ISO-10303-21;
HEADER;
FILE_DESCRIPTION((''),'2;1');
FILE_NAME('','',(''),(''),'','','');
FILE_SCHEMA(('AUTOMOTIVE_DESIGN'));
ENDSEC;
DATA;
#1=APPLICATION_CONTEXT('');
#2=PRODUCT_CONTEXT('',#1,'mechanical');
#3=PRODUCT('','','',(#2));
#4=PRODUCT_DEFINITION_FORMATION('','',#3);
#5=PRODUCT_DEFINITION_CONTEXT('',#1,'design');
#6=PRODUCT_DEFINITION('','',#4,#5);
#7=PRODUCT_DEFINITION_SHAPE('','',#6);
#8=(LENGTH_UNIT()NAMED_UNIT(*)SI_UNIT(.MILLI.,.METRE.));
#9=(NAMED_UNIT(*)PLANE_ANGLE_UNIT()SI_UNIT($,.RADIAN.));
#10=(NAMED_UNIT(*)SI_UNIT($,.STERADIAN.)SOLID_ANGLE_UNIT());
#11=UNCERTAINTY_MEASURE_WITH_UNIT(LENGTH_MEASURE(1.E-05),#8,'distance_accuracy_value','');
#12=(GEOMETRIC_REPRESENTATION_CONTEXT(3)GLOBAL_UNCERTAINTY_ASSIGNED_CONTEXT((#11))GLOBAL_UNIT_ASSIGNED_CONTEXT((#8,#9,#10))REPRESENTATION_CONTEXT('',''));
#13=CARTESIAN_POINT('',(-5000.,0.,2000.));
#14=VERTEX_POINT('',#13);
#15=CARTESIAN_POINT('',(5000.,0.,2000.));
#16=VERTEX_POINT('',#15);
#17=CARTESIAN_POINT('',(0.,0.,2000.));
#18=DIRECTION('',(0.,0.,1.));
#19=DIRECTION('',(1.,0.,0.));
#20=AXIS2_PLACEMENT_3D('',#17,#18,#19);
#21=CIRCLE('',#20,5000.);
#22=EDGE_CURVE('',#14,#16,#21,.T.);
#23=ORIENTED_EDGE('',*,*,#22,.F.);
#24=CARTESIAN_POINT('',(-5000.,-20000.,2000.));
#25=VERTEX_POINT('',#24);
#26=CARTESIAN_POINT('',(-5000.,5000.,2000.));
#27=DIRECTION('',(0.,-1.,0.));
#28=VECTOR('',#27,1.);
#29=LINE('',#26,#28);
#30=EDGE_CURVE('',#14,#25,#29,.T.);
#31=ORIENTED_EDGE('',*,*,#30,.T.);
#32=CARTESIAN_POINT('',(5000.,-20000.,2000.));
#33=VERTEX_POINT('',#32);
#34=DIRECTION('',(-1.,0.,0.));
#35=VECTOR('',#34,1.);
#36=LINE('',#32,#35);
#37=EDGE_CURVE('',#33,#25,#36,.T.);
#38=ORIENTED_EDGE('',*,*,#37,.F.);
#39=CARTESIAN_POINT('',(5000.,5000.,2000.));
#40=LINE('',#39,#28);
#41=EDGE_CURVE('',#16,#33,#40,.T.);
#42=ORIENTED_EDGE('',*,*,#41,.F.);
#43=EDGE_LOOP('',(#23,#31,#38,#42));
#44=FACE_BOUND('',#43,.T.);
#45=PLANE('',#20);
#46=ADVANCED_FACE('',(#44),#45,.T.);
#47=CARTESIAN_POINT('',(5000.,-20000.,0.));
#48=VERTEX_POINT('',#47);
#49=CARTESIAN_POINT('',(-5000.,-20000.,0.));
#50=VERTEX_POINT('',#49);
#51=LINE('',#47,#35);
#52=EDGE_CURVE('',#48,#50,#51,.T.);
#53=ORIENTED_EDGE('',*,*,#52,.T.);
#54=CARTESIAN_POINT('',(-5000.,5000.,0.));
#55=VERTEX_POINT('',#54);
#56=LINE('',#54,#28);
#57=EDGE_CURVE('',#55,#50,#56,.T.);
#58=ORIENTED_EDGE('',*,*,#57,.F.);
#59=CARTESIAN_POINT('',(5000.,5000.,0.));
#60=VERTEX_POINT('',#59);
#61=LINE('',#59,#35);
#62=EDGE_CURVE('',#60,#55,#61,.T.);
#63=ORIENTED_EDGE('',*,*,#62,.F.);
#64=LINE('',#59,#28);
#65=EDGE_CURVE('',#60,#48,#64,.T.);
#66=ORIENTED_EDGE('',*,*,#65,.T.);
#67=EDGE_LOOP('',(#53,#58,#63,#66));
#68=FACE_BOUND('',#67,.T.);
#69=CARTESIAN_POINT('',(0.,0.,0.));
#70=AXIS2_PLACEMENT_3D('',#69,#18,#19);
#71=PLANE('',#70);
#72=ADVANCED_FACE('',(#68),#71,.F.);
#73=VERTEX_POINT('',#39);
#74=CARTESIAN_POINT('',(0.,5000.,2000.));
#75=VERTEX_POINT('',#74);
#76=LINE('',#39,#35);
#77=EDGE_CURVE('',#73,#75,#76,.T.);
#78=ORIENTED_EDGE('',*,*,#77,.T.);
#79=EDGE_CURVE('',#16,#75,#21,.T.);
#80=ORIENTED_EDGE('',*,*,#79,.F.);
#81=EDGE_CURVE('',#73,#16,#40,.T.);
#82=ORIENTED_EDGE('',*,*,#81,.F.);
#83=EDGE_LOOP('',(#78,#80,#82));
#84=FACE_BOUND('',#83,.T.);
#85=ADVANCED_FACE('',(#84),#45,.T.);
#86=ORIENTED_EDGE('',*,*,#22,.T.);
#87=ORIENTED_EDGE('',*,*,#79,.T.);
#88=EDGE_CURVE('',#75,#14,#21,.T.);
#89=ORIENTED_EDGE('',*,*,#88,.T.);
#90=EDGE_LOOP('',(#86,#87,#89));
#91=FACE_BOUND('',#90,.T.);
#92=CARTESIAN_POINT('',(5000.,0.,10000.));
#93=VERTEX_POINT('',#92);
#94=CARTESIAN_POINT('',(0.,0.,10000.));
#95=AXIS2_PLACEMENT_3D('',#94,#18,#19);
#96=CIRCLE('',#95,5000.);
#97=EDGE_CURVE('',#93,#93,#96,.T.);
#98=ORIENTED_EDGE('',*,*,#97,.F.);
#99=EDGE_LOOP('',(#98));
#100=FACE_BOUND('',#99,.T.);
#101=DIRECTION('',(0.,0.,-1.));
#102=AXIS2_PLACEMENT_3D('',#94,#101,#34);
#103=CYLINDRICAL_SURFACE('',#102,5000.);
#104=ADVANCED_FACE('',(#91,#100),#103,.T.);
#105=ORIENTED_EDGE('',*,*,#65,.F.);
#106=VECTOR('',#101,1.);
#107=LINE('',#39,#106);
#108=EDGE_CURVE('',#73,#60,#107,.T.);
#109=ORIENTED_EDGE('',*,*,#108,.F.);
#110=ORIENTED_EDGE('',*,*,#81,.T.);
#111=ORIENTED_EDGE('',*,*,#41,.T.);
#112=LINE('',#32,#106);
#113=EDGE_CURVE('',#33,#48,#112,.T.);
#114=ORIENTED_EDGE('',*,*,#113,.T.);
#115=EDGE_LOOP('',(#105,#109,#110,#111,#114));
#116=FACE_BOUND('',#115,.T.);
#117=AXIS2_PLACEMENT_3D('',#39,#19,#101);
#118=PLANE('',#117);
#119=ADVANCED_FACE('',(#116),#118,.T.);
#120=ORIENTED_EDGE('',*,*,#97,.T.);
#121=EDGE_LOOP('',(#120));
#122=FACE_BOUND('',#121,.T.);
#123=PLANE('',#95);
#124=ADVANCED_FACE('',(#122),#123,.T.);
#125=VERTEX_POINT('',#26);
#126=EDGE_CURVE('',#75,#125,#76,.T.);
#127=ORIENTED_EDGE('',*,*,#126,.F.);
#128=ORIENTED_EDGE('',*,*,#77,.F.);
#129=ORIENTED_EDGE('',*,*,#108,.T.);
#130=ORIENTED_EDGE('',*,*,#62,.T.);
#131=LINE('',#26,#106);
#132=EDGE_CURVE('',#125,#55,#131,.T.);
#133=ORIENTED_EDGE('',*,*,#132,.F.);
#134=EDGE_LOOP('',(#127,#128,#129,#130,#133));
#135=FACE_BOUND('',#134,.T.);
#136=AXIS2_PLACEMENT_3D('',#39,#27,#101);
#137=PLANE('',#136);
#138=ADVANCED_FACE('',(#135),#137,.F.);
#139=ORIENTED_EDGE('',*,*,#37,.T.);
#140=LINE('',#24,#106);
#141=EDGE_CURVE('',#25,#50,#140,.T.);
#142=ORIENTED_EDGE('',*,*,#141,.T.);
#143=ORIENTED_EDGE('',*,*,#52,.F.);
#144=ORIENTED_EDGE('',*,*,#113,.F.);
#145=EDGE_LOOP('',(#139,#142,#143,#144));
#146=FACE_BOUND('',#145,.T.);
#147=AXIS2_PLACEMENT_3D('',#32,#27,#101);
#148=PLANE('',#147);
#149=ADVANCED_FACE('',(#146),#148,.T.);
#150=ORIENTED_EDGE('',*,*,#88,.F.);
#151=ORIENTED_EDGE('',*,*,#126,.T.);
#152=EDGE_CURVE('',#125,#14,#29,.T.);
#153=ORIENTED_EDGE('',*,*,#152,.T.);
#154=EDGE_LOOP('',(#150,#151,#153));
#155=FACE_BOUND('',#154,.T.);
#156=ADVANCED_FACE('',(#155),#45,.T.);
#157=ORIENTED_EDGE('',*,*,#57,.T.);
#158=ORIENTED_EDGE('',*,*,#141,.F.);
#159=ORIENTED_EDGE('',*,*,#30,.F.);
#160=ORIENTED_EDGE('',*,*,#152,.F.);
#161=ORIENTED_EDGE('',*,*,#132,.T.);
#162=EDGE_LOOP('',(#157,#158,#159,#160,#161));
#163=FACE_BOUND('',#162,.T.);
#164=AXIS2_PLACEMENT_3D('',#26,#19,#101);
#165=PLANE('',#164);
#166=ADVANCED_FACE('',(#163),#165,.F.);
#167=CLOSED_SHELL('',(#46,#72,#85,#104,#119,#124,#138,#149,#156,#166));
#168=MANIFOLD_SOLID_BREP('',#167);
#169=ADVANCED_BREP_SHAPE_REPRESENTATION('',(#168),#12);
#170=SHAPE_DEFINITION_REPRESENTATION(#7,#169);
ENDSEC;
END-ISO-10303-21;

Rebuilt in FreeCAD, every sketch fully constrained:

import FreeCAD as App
import Part
import Sketcher

V = App.Vector
Q = App.Units.Quantity

doc = App.newDocument("Part")
params = doc.addObject("Spreadsheet::Sheet", "Params")
for row, (alias, value) in enumerate([
    ("sketch1_diameter", "10000 mm"),
    ("pad1_length", "10000 mm"),
    ("sketch2_width", "10000 mm"),
    ("sketch2_height", "25000 mm"),
    ("pad2_length", "2000 mm"),
], start=1):
    params.set(f"A{row}", alias)
    params.set(f"B{row}", "=" + value)
    params.setAlias(f"B{row}", alias)

body = doc.addObject("PartDesign::Body", "Body")

# Sketch on XY plane
sketch1 = body.newObject("Sketcher::SketchObject", "Sketch")
sketch1.AttachmentSupport = (doc.getObject("XY_Plane"), [""])
sketch1.MapMode = "FlatFace"
sketch1.addGeometry(Part.Circle(V(0, 0, 0), V(0, 0, 1), 5000), False)
sketch1.addConstraint(Sketcher.Constraint("Coincident", 0, 3, -1, 1))
sketch1.addConstraint(Sketcher.Constraint("Diameter", 0, Q("10000 mm")))
sketch1.setExpression("Constraints[1]", "Params.sketch1_diameter")
pad1 = body.newObject("PartDesign::Pad", "Pad")
pad1.Profile = sketch1
pad1.setExpression("Length", "Params.pad1_length")

# Sketch on XY plane
sketch2 = body.newObject("Sketcher::SketchObject", "Sketch001")
sketch2.AttachmentSupport = (doc.getObject("XY_Plane"), [""])
sketch2.MapMode = "FlatFace"
sketch2.addGeometry(Part.LineSegment(V(-5000, 5000, 0), V(-5000, -20000, 0)), False)
sketch2.addGeometry(Part.LineSegment(V(-5000, -20000, 0), V(5000, -20000, 0)), False)
sketch2.addGeometry(Part.LineSegment(V(5000, -20000, 0), V(5000, 5000, 0)), False)
sketch2.addGeometry(Part.LineSegment(V(5000, 5000, 0), V(-5000, 5000, 0)), False)
sketch2.addConstraint(Sketcher.Constraint("Coincident", 0, 2, 1, 1))
sketch2.addConstraint(Sketcher.Constraint("Coincident", 1, 2, 2, 1))
sketch2.addConstraint(Sketcher.Constraint("Coincident", 2, 2, 3, 1))
sketch2.addConstraint(Sketcher.Constraint("Coincident", 3, 2, 0, 1))
sketch2.addConstraint(Sketcher.Constraint("Vertical", 0))
sketch2.addConstraint(Sketcher.Constraint("Horizontal", 1))
sketch2.addConstraint(Sketcher.Constraint("Vertical", 2))
sketch2.addConstraint(Sketcher.Constraint("Horizontal", 3))
sketch2.addConstraint(Sketcher.Constraint("DistanceX", 1, 1, 1, 2, Q("10000 mm")))
sketch2.addConstraint(Sketcher.Constraint("DistanceY", 0, 2, 0, 1, Q("25000 mm")))
sketch2.addConstraint(Sketcher.Constraint("DistanceX", 0, 2, -1, 1, Q("5000 mm")))
sketch2.addConstraint(Sketcher.Constraint("DistanceY", 0, 2, -1, 1, Q("20000 mm")))
sketch2.setExpression("Constraints[8]", "Params.sketch2_width")
sketch2.setExpression("Constraints[9]", "Params.sketch2_height")
pad2 = body.newObject("PartDesign::Pad", "Pad001")
pad2.Profile = sketch2
pad2.setExpression("Length", "Params.pad2_length")

doc.recompute()
